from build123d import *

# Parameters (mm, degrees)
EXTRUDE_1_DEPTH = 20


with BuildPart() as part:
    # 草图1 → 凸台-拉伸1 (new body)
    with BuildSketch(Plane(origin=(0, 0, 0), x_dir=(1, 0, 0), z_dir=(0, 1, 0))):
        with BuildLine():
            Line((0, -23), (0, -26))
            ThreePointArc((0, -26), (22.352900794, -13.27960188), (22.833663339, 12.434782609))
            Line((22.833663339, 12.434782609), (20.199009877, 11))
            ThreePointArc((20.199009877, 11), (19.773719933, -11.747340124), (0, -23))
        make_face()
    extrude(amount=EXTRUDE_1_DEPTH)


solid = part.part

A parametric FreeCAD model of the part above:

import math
import FreeCAD as App
import Part
import Sketcher
from FreeCAD import Vector

doc = App.newDocument("Part")
body = doc.addObject("PartDesign::Body", "Body")

# Sketch on XZ plane
sketch1 = body.newObject("Sketcher::SketchObject", "Sketch")
sketch1.AttachmentSupport = (doc.getObject("XZ_Plane"), [""])
sketch1.MapMode = "FlatFace"
sketch1.addGeometry([
    Part.LineSegment(Vector(0, 23, 0), Vector(0, 26, 0)),
    Part.ArcOfCircle(Part.Circle(Vector(0, 0, 0), Vector(0, 0, 1), 26), math.radians(-29), math.radians(90)),
    Part.LineSegment(Vector(22.8, -12.4, 0), Vector(20.2, -11, 0)),
    Part.ArcOfCircle(Part.Circle(Vector(0, 0, 0), Vector(0, 0, 1), 23), math.radians(-29), math.radians(90)),
], False)
sketch1.addConstraint([
    Sketcher.Constraint("Coincident", 0, 2, 1, 2),
    Sketcher.Constraint("Coincident", 1, 1, 2, 1),
    Sketcher.Constraint("Coincident", 2, 2, 3, 1),
    Sketcher.Constraint("Coincident", 3, 2, 0, 1),
    Sketcher.Constraint("Vertical", 0),
    Sketcher.Constraint("Coincident", 1, 3, -1, 1),
    Sketcher.Constraint("Coincident", 3, 3, -1, 1),
    Sketcher.Constraint("PointOnObject", 0, 2, -2),
    Sketcher.Constraint("Radius", 1, 26.0),
    Sketcher.Constraint("Radius", 3, 23.0),
    Sketcher.Constraint("DistanceY", 2, 2, -1, 1, 11.0),
    Sketcher.Constraint("DistanceX", -1, 1, 1, 1, 22.833663),
])
pad1 = body.newObject("PartDesign::Pad", "Pad")
pad1.Profile = sketch1
pad1.Length = 20
pad1.Reversed = True

doc.recompute()
